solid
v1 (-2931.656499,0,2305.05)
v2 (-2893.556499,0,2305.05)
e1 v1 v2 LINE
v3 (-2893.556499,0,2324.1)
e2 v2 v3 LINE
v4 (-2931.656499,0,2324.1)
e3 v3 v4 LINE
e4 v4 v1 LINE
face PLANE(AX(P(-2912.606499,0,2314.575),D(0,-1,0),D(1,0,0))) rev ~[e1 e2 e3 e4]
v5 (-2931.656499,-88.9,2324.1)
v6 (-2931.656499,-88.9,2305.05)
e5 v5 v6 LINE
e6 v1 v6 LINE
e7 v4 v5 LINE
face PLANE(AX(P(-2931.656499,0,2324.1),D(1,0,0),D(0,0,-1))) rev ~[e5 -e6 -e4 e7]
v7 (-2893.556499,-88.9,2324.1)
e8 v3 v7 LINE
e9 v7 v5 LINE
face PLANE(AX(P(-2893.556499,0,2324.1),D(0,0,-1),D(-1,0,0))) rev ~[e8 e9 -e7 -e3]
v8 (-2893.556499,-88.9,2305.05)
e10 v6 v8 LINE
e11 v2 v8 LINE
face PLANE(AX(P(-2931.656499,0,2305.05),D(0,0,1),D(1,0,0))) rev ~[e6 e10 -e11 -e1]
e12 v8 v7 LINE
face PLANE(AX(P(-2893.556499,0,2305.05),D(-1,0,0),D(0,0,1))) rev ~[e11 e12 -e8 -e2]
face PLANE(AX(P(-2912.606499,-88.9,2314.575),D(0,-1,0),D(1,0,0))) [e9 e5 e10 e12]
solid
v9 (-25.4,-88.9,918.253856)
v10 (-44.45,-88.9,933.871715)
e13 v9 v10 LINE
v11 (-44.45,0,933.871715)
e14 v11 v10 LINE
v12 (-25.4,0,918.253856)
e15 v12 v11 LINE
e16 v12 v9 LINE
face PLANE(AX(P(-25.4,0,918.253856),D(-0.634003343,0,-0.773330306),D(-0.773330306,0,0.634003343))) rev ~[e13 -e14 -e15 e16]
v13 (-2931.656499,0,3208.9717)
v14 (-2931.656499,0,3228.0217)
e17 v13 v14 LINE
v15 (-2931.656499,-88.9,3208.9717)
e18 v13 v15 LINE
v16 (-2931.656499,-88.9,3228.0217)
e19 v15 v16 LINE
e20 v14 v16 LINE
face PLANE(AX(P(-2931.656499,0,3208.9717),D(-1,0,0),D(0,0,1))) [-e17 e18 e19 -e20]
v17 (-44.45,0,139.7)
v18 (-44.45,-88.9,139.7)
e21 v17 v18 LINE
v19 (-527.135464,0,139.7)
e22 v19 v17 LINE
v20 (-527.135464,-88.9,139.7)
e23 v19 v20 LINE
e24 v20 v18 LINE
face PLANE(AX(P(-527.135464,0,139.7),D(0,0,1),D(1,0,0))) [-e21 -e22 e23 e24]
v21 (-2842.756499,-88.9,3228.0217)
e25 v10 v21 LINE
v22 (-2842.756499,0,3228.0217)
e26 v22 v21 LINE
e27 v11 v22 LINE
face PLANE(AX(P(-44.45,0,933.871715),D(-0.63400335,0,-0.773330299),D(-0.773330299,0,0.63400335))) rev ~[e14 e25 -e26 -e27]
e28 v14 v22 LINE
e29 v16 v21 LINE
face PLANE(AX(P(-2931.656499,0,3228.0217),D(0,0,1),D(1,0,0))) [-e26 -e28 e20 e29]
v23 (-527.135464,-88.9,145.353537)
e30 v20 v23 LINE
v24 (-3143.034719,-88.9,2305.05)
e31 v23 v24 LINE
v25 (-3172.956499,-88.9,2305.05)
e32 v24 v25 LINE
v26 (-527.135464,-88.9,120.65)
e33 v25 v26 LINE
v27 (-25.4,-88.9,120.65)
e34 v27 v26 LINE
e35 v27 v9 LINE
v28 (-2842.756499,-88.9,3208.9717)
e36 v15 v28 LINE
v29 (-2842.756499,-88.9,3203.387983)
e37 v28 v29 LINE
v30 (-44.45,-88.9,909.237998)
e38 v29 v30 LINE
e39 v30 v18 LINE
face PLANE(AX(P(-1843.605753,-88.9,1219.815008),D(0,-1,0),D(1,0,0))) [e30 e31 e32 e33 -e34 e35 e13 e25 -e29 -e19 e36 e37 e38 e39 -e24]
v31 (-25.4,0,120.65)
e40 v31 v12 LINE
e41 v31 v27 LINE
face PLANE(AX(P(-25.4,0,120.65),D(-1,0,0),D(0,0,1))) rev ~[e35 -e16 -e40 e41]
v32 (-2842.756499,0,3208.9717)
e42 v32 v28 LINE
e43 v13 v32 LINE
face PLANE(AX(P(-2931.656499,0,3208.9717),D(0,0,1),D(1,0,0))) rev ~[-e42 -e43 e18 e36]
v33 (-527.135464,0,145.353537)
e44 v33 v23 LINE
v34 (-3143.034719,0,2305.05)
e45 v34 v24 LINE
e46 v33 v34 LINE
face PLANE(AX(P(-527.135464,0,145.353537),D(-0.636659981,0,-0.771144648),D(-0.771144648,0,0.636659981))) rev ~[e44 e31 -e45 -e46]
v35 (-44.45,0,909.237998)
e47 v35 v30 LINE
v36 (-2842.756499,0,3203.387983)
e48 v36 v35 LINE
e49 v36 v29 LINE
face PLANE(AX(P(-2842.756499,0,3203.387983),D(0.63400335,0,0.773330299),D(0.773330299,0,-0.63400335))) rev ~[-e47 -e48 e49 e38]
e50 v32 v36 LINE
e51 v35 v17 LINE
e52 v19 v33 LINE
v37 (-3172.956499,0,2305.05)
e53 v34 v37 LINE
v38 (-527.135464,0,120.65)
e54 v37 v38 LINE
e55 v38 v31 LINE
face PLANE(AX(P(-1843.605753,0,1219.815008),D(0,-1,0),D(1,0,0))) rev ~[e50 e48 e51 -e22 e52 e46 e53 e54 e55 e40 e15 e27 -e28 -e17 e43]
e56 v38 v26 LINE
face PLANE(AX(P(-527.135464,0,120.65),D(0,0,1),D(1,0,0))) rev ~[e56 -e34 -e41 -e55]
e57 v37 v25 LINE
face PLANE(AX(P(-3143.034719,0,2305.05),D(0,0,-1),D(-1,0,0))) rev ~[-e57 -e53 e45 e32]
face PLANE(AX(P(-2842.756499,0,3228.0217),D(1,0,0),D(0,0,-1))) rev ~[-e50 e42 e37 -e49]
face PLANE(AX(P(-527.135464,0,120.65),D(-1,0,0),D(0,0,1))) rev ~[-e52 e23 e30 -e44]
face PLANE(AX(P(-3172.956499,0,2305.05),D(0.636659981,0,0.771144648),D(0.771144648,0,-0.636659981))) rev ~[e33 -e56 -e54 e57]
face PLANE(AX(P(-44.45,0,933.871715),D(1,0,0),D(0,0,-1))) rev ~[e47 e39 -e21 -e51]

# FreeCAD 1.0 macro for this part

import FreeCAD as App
import Part
import Sketcher

V = App.Vector
Q = App.Units.Quantity

doc = App.newDocument("Part")
body = doc.addObject("PartDesign::Body", "Body")

# Sketch on XZ plane
sketch1 = doc.addObject("Sketcher::SketchObject", "Sketch")
body.addObject(sketch1)
sketch1.AttachmentSupport = (doc.XZ_Plane, [""])
sketch1.MapMode = "FlatFace"
sketch1.addGeometry(Part.LineSegment(V(-2931.656499, 3228.0217, 0), V(-2931.656499, 3208.9717, 0)), False)
sketch1.addGeometry(Part.LineSegment(V(-2931.656499, 3208.9717, 0), V(-2842.756499, 3208.9717, 0)), False)
sketch1.addGeometry(Part.LineSegment(V(-2842.756499, 3208.9717, 0), V(-2842.756499, 3228.0217, 0)), False)
sketch1.addGeometry(Part.LineSegment(V(-2842.756499, 3228.0217, 0), V(-2931.656499, 3228.0217, 0)), False)
sketch1.addConstraint(Sketcher.Constraint("Coincident", 0, 2, 1, 1))
sketch1.addConstraint(Sketcher.Constraint("Coincident", 1, 2, 2, 1))
sketch1.addConstraint(Sketcher.Constraint("Coincident", 2, 2, 3, 1))
sketch1.addConstraint(Sketcher.Constraint("Coincident", 3, 2, 0, 1))
sketch1.addConstraint(Sketcher.Constraint("Vertical", 0))
sketch1.addConstraint(Sketcher.Constraint("Horizontal", 1))
sketch1.addConstraint(Sketcher.Constraint("Vertical", 2))
sketch1.addConstraint(Sketcher.Constraint("Horizontal", 3))
sketch1.addConstraint(Sketcher.Constraint("DistanceX", 1, 1, 1, 2, Q("3.5 in")))
sketch1.addConstraint(Sketcher.Constraint("DistanceY", 0, 2, 0, 1, Q("0.75 in")))
sketch1.addConstraint(Sketcher.Constraint("DistanceX", 0, 2, -1, 1, Q("2931.656499 mm")))
sketch1.addConstraint(Sketcher.Constraint("DistanceY", -1, 1, 0, 2, Q("3208.9717 mm")))
pad1 = doc.addObject("PartDesign::Pad", "Pad")
body.addObject(pad1)
pad1.Profile = sketch1
pad1.Length = Q("3.5 in")

# Sketch on XZ plane
sketch2 = doc.addObject("Sketcher::SketchObject", "Sketch001")
body.addObject(sketch2)
sketch2.AttachmentSupport = (doc.XZ_Plane, [""])
sketch2.MapMode = "FlatFace"
sketch2.addGeometry(Part.LineSegment(V(-44.45, 933.871715, 0), V(-2842.756499, 3228.0217, 0)), False)
sketch2.addGeometry(Part.LineSegment(V(-2842.756499, 3228.0217, 0), V(-2842.756499, 3203.387983, 0)), False)
sketch2.addGeometry(Part.LineSegment(V(-2842.756499, 3203.387983, 0), V(-44.45, 909.237998, 0)), False)
sketch2.addGeometry(Part.LineSegment(V(-44.45, 909.237998, 0), V(-44.45, 933.871715, 0)), False)
sketch2.addConstraint(Sketcher.Constraint("Coincident", 0, 2, 1, 1))
sketch2.addConstraint(Sketcher.Constraint("Coincident", 1, 2, 2, 1))
sketch2.addConstraint(Sketcher.Constraint("Coincident", 2, 2, 3, 1))
sketch2.addConstraint(Sketcher.Constraint("Coincident", 3, 2, 0, 1))
sketch2.addConstraint(Sketcher.Constraint("Vertical", 1))
sketch2.addConstraint(Sketcher.Constraint("Vertical", 3))
sketch2.addConstraint(Sketcher.Constraint("Parallel", 0, 2))
sketch2.addConstraint(Sketcher.Constraint("DistanceX", 2, 2, -1, 1, Q("1.75 in")))
sketch2.addConstraint(Sketcher.Constraint("DistanceX", 0, 2, -1, 1, Q("2842.756499 mm")))
sketch2.addConstraint(Sketcher.Constraint("DistanceY", -1, 1, 0, 2, Q("3228.0217 mm")))
sketch2.addConstraint(Sketcher.Constraint("DistanceY", 2, 2, 0, 2, Q("2318.783702 mm")))
sketch2.addConstraint(Sketcher.Constraint("Distance", 0, Q("3618.513979 mm")))
pad2 = doc.addObject("PartDesign::Pad", "Pad001")
body.addObject(pad2)
pad2.Profile = sketch2
pad2.Length = Q("3.5 in")

# Sketch on XZ plane
sketch3 = doc.addObject("Sketcher::SketchObject", "Sketch002")
body.addObject(sketch3)
sketch3.AttachmentSupport = (doc.XZ_Plane, [""])
sketch3.MapMode = "FlatFace"
sketch3.addGeometry(Part.LineSegment(V(-25.4, 918.253856, 0), V(-44.45, 933.871715, 0)), False)
sketch3.addGeometry(Part.LineSegment(V(-44.45, 933.871715, 0), V(-44.45, 120.65, 0)), False)
sketch3.addGeometry(Part.LineSegment(V(-44.45, 120.65, 0), V(-25.4, 120.65, 0)), False)
sketch3.addGeometry(Part.LineSegment(V(-25.4, 120.65, 0), V(-25.4, 918.253856, 0)), False)
sketch3.addConstraint(Sketcher.Constraint("Coincident", 0, 2, 1, 1))
sketch3.addConstraint(Sketcher.Constraint("Coincident", 1, 2, 2, 1))
sketch3.addConstraint(Sketcher.Constraint("Coincident", 2, 2, 3, 1))
sketch3.addConstraint(Sketcher.Constraint("Coincident", 3, 2, 0, 1))
sketch3.addConstraint(Sketcher.Constraint("Vertical", 1))
sketch3.addConstraint(Sketcher.Constraint("Horizontal", 2))
sketch3.addConstraint(Sketcher.Constraint("Vertical", 3))
sketch3.addConstraint(Sketcher.Constraint("DistanceX", 2, 2, -1, 1, Q("1 in")))
sketch3.addConstraint(Sketcher.Constraint("DistanceX", 2, 1, 2, 2, Q("0.75 in")))
sketch3.addConstraint(Sketcher.Constraint("DistanceY", -1, 1, 1, 2, Q("4.75 in")))
sketch3.addConstraint(Sketcher.Constraint("DistanceY", 1, 2, 1, 1, Q("813.221715 mm")))
sketch3.addConstraint(Sketcher.Constraint("DistanceY", 3, 1, 3, 2, Q("797.603856 mm")))
pad3 = doc.addObject("PartDesign::Pad", "Pad002")
body.addObject(pad3)
pad3.Profile = sketch3
pad3.Length = Q("3.5 in")

# Sketch on XZ plane
sketch4 = doc.addObject("Sketcher::SketchObject", "Sketch003")
body.addObject(sketch4)
sketch4.AttachmentSupport = (doc.XZ_Plane, [""])
sketch4.MapMode = "FlatFace"
sketch4.addGeometry(Part.LineSegment(V(-527.135464, 139.7, 0), V(-527.135464, 120.65, 0)), False)
sketch4.addGeometry(Part.LineSegment(V(-527.135464, 120.65, 0), V(-44.45, 120.65, 0)), False)
sketch4.addGeometry(Part.LineSegment(V(-44.45, 120.65, 0), V(-44.45, 139.7, 0)), False)
sketch4.addGeometry(Part.LineSegment(V(-44.45, 139.7, 0), V(-527.135464, 139.7, 0)), False)
sketch4.addConstraint(Sketcher.Constraint("Coincident", 0, 2, 1, 1))
sketch4.addConstraint(Sketcher.Constraint("Coincident", 1, 2, 2, 1))
sketch4.addConstraint(Sketcher.Constraint("Coincident", 2, 2, 3, 1))
sketch4.addConstraint(Sketcher.Constraint("Coincident", 3, 2, 0, 1))
sketch4.addConstraint(Sketcher.Constraint("Vertical", 0))
sketch4.addConstraint(Sketcher.Constraint("Horizontal", 1))
sketch4.addConstraint(Sketcher.Constraint("Vertical", 2))
sketch4.addConstraint(Sketcher.Constraint("Horizontal", 3))
sketch4.addConstraint(Sketcher.Constraint("DistanceY", 0, 2, 0, 1, Q("0.75 in")))
sketch4.addConstraint(Sketcher.Constraint("DistanceY", -1, 1, 2, 2, Q("5.5 in")))
sketch4.addConstraint(Sketcher.Constraint("DistanceX", 1, 2, -1, 1, Q("1.75 in")))
sketch4.addConstraint(Sketcher.Constraint("DistanceX", 1, 1, 1, 2, Q("482.685464 mm")))
pad4 = doc.addObject("PartDesign::Pad", "Pad003")
body.addObject(pad4)
pad4.Profile = sketch4
pad4.Length = Q("3.5 in")

# Sketch on XZ plane
sketch5 = doc.addObject("Sketcher::SketchObject", "Sketch004")
body.addObject(sketch5)
sketch5.AttachmentSupport = (doc.XZ_Plane, [""])
sketch5.MapMode = "FlatFace"
sketch5.addGeometry(Part.LineSegment(V(-3172.956499, 2305.05, 0), V(-527.135464, 120.65, 0)), False)
sketch5.addGeometry(Part.LineSegment(V(-527.135464, 120.65, 0), V(-527.135464, 145.353537, 0)), False)
sketch5.addGeometry(Part.LineSegment(V(-527.135464, 145.353537, 0), V(-3143.034719, 2305.05, 0)), False)
sketch5.addGeometry(Part.LineSegment(V(-3143.034719, 2305.05, 0), V(-3172.956499, 2305.05, 0)), False)
sketch5.addConstraint(Sketcher.Constraint("Coincident", 0, 2, 1, 1))
sketch5.addConstraint(Sketcher.Constraint("Coincident", 1, 2, 2, 1))
sketch5.addConstraint(Sketcher.Constraint("Coincident", 2, 2, 3, 1))
sketch5.addConstraint(Sketcher.Constraint("Coincident", 3, 2, 0, 1))
sketch5.addConstraint(Sketcher.Constraint("Vertical", 1))
sketch5.addConstraint(Sketcher.Constraint("Horizontal", 3))
sketch5.addConstraint(Sketcher.Constraint("Parallel", 0, 2))
sketch5.addConstraint(Sketcher.Constraint("DistanceY", 0, 2, 2, 2, Q("86 in")))
sketch5.addConstraint(Sketcher.Constraint("DistanceY", -1, 1, 0, 2, Q("4.75 in")))
sketch5.addConstraint(Sketcher.Constraint("DistanceX", 3, 2, 3, 1, Q("29.92178 mm")))
sketch5.addConstraint(Sketcher.Constraint("DistanceX", 3, 2, -1, 1, Q("3172.956499 mm")))
sketch5.addConstraint(Sketcher.Constraint("Distance", 2, Q("3392.22902 mm")))
pad5 = doc.addObject("PartDesign::Pad", "Pad004")
body.addObject(pad5)
pad5.Profile = sketch5
pad5.Length = Q("3.5 in")
body2 = doc.addObject("PartDesign::Body", "Body001")

# Sketch on XZ plane
sketch6 = doc.addObject("Sketcher::SketchObject", "Sketch005")
body2.addObject(sketch6)
sketch6.AttachmentSupport = (doc.getObject("XZ_Plane001"), [""])
sketch6.MapMode = "FlatFace"
sketch6.addGeometry(Part.LineSegment(V(-2893.556499, 2324.1, 0), V(-2931.656499, 2324.1, 0)), False)
sketch6.addGeometry(Part.LineSegment(V(-2931.656499, 2324.1, 0), V(-2931.656499, 2305.05, 0)), False)
sketch6.addGeometry(Part.LineSegment(V(-2931.656499, 2305.05, 0), V(-2893.556499, 2305.05, 0)), False)
sketch6.addGeometry(Part.LineSegment(V(-2893.556499, 2305.05, 0), V(-2893.556499, 2324.1, 0)), False)
sketch6.addConstraint(Sketcher.Constraint("Coincident", 0, 2, 1, 1))
sketch6.addConstraint(Sketcher.Constraint("Coincident", 1, 2, 2, 1))
sketch6.addConstraint(Sketcher.Constraint("Coincident", 2, 2, 3, 1))
sketch6.addConstraint(Sketcher.Constraint("Coincident", 3, 2, 0, 1))
sketch6.addConstraint(Sketcher.Constraint("Horizontal", 0))
sketch6.addConstraint(Sketcher.Constraint("Vertical", 1))
sketch6.addConstraint(Sketcher.Constraint("Horizontal", 2))
sketch6.addConstraint(Sketcher.Constraint("Vertical", 3))
sketch6.addConstraint(Sketcher.Constraint("DistanceX", 0, 2, 0, 1, Q("1.5 in")))
sketch6.addConstraint(Sketcher.Constraint("DistanceY", 1, 2, 1, 1, Q("0.75 in")))
sketch6.addConstraint(Sketcher.Constraint("DistanceY", -1, 1, 0, 2, Q("91.5 in")))
sketch6.addConstraint(Sketcher.Constraint("DistanceX", 0, 2, -1, 1, Q("2931.656499 mm")))
pad6 = doc.addObject("PartDesign::Pad", "Pad005")
body2.addObject(pad6)
pad6.Profile = sketch6
pad6.Length = Q("3.5 in")

doc.recompute()
